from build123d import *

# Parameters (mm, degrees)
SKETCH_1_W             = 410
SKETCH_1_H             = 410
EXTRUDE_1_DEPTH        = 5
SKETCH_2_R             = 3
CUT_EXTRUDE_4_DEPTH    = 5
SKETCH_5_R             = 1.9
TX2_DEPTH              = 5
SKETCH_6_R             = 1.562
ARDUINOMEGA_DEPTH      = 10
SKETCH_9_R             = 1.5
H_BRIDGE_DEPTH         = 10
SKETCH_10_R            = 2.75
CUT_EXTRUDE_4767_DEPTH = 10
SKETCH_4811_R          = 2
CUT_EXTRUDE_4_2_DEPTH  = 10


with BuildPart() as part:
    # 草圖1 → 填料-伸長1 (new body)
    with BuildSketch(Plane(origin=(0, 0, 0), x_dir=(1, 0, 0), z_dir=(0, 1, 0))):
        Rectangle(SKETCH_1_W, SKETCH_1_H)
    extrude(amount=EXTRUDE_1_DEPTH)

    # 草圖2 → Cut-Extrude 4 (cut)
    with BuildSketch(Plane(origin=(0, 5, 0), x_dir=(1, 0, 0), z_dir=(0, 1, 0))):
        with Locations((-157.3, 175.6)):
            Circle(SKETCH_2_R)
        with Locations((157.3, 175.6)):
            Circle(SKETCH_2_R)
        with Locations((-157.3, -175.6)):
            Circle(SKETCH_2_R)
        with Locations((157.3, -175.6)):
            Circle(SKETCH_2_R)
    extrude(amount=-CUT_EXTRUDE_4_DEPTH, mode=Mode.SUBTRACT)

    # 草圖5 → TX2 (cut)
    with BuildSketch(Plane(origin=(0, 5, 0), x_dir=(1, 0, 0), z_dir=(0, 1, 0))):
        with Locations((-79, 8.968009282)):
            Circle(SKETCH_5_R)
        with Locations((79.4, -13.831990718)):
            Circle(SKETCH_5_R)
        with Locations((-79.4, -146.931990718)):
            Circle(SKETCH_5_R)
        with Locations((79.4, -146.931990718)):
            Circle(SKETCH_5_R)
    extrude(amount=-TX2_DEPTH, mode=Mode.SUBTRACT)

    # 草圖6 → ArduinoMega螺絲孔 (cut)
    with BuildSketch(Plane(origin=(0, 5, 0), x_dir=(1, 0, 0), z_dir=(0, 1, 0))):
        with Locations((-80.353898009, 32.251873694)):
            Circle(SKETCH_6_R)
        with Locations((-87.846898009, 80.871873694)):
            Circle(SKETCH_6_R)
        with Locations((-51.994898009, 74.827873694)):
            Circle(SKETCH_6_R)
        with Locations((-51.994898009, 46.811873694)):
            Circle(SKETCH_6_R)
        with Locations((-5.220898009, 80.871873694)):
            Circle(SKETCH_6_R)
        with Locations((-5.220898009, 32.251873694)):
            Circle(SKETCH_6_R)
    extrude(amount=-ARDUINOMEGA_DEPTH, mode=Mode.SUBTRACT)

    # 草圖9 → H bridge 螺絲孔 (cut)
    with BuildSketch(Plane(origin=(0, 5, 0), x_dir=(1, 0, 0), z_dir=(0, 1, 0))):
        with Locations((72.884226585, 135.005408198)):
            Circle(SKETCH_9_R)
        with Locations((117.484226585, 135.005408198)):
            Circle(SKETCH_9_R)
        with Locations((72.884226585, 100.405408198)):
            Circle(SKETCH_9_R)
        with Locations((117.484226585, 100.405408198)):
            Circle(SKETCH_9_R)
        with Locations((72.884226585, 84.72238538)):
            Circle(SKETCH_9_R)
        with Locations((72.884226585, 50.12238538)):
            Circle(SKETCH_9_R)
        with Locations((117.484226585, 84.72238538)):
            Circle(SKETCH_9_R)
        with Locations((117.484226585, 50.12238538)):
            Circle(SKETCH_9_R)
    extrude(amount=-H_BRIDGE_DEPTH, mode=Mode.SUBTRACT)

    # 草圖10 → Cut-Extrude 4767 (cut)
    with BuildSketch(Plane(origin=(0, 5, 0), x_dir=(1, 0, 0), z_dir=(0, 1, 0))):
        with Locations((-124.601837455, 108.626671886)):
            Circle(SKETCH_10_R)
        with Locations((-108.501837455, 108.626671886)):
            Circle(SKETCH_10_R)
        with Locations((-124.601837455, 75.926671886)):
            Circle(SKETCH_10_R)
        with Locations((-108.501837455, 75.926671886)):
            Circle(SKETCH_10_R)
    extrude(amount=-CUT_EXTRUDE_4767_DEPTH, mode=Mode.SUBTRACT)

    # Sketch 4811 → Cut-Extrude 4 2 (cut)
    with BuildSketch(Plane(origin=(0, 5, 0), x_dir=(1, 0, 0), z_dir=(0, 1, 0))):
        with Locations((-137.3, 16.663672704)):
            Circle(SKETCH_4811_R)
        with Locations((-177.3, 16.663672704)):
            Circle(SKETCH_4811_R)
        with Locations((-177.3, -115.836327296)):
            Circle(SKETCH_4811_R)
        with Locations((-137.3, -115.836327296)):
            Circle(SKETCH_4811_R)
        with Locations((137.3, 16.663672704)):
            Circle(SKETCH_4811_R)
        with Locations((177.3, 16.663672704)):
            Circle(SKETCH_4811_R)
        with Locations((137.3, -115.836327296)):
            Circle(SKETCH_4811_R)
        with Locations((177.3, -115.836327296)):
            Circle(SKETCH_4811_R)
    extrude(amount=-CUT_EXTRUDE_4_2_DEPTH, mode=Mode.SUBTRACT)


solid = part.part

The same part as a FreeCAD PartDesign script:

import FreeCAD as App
import Part
import Sketcher

V = App.Vector
Q = App.Units.Quantity


def add_polygon(sketch, points):
    """Adds a closed chain of lines whose ends are joined by coincident constraints."""
    first, n = sketch.GeometryCount, len(points)
    for a, b in zip(points, points[1:] + points[:1]):
        sketch.addGeometry(Part.LineSegment(App.Vector(*a, 0), App.Vector(*b, 0)), False)
    for i in range(n):
        sketch.addConstraint(Sketcher.Constraint("Coincident", first + i, 2, first + (i + 1) % n, 1))

doc = App.newDocument("Part")
params = doc.addObject("Spreadsheet::Sheet", "Params")
for row, (alias, value) in enumerate([
    ("sketch1_width", "410 mm"),
    ("pad1_length", "5 mm"),
    ("sketch2_diameter", "6 mm"),
    ("pocket1_length", "5 mm"),
    ("sketch3_diameter", "3.8 mm"),
    ("pocket2_length", "5 mm"),
    ("pocket3_length", "10 mm"),
    ("sketch5_diameter", "3 mm"),
    ("pocket4_length", "10 mm"),
    ("sketch6_diameter", "5.5 mm"),
    ("pocket5_length", "10 mm"),
    ("sketch7_diameter", "4 mm"),
    ("pocket6_length", "10 mm"),
], start=1):
    params.set(f"A{row}", alias)
    params.set(f"B{row}", "=" + value)
    params.setAlias(f"B{row}", alias)

body = doc.addObject("PartDesign::Body", "Body")

sketch1 = body.newObject("Sketcher::SketchObject", "Sketch")
sketch1.AttachmentSupport = (doc.getObject("XZ_Plane"), [""])
sketch1.MapMode = "FlatFace"
add_polygon(sketch1, [(-205, -205), (-205, 205), (205, 205), (205, -205)])
sketch1.addConstraint([
    Sketcher.Constraint("Vertical", 0),
    Sketcher.Constraint("Horizontal", 1),
    Sketcher.Constraint("Vertical", 2),
    Sketcher.Constraint("Horizontal", 3),
    Sketcher.Constraint("Symmetric", 0, 2, 2, 2, -1, 1),
    Sketcher.Constraint("Equal", 3, 0),
    Sketcher.Constraint("DistanceX", 1, 1, 1, 2, Q("410 mm")),
])
sketch1.setExpression("Constraints[10]", "Params.sketch1_width")
pad1 = body.newObject("PartDesign::Pad", "Pad")
pad1.Profile = sketch1
pad1.setExpression("Length", "Params.pad1_length")
pad1.Reversed = True

sketch2 = body.newObject("Sketcher::SketchObject", "Sketch001")
sketch2.AttachmentSupport = (doc.getObject("XZ_Plane"), [""])
sketch2.MapMode = "FlatFace"
sketch2.AttachmentOffset = App.Placement(V(0, 0, -5), App.Rotation())
sketch2.addGeometry([
    Part.Circle(V(-157.3, -175.6, 0), V(0, 0, 1), 3),
    Part.Circle(V(157.3, -175.6, 0), V(0, 0, 1), 3),
    Part.Circle(V(-157.3, 175.6, 0), V(0, 0, 1), 3),
    Part.Circle(V(157.3, 175.6, 0), V(0, 0, 1), 3),
], False)
sketch2.addConstraint([
    Sketcher.Constraint("Equal", 0, 1),
    Sketcher.Constraint("Equal", 1, 2),
    Sketcher.Constraint("Equal", 2, 3),
    Sketcher.Constraint("Symmetric", 1, 3, 2, 3, -1, 1),
    Sketcher.Constraint("Symmetric", 0, 3, 3, 3, -1, 1),
    Sketcher.Constraint("Symmetric", 0, 3, 1, 3, -2),
    Sketcher.Constraint("Diameter", 0, Q("6 mm")),
    Sketcher.Constraint("DistanceX", 0, 3, -1, 1, Q("157.3 mm")),
    Sketcher.Constraint("DistanceY", 0, 3, -1, 1, Q("175.6 mm")),
])
sketch2.setExpression("Constraints[6]", "Params.sketch2_diameter")
pocket1 = body.newObject("PartDesign::Pocket", "Pocket")
pocket1.Profile = sketch2
pocket1.setExpression("Length", "Params.pocket1_length")
pocket1.Reversed = True

sketch3 = body.newObject("Sketcher::SketchObject", "Sketch002")
sketch3.AttachmentSupport = (doc.getObject("XZ_Plane"), [""])
sketch3.MapMode = "FlatFace"
sketch3.AttachmentOffset = App.Placement(V(0, 0, -5), App.Rotation())
sketch3.addGeometry([
    Part.Circle(V(-79, -9, 0), V(0, 0, 1), 1.9),
    Part.Circle(V(79.4, 13.8, 0), V(0, 0, 1), 1.9),
    Part.Circle(V(-79.4, 146.9, 0), V(0, 0, 1), 1.9),
    Part.Circle(V(79.4, 146.9, 0), V(0, 0, 1), 1.9),
], False)
sketch3.addConstraint([
    Sketcher.Constraint("Equal", 0, 1),
    Sketcher.Constraint("Equal", 1, 2),
    Sketcher.Constraint("Equal", 2, 3),
    Sketcher.Constraint("Symmetric", 2, 3, 3, 3, -2),
    Sketcher.Constraint("Vertical", 1, 3, 3, 3),
    Sketcher.Constraint("Diameter", 0, Q("3.8 mm")),
    Sketcher.Constraint("DistanceX", 0, 3, -1, 1, Q("79 mm")),
    Sketcher.Constraint("DistanceX", -1, 1, 1, 3, Q("79.4 mm")),
    Sketcher.Constraint("DistanceY", 0, 3, 1, 3, Q("22.8 mm")),
    Sketcher.Constraint("DistanceY", 0, 3, 2, 3, Q("155.9 mm")),
    Sketcher.Constraint("DistanceY", 0, 3, -1, 1, Q("8.968009 mm")),
])
sketch3.setExpression("Constraints[5]", "Params.sketch3_diameter")
pocket2 = body.newObject("PartDesign::Pocket", "Pocket001")
pocket2.Profile = sketch3
pocket2.setExpression("Length", "Params.pocket2_length")
pocket2.Reversed = True

sketch4 = body.newObject("Sketcher::SketchObject", "Sketch003")
sketch4.AttachmentSupport = (doc.getObject("XZ_Plane"), [""])
sketch4.MapMode = "FlatFace"
sketch4.AttachmentOffset = App.Placement(V(0, 0, -5), App.Rotation())
sketch4.addGeometry([
    Part.Circle(V(-80.4, -32.3, 0), V(0, 0, 1), 1.6),
    Part.Circle(V(-87.8, -80.9, 0), V(0, 0, 1), 1.6),
    Part.Circle(V(-52, -74.8, 0), V(0, 0, 1), 1.6),
    Part.Circle(V(-52, -46.8, 0), V(0, 0, 1), 1.6),
    Part.Circle(V(-5.2, -80.9, 0), V(0, 0, 1), 1.6),
    Part.Circle(V(-5.2, -32.3, 0), V(0, 0, 1), 1.6),
], False)
sketch4.addConstraint([
    Sketcher.Constraint("Equal", 0, 1),
    Sketcher.Constraint("Equal", 1, 2),
    Sketcher.Constraint("Equal", 2, 3),
    Sketcher.Constraint("Equal", 3, 4),
    Sketcher.Constraint("Equal", 4, 5),
    Sketcher.Constraint("Horizontal", 1, 3, 4, 3),
    Sketcher.Constraint("Horizontal", 0, 3, 5, 3),
    Sketcher.Constraint("Vertical", 2, 3, 3, 3),
    Sketcher.Constraint("Vertical", 4, 3, 5, 3),
    Sketcher.Constraint("Diameter", 0, Q("3.124 mm")),
    Sketcher.Constraint("DistanceY", 1, 3, 0, 3, Q("48.62 mm")),
    Sketcher.Constraint("DistanceY", 3, 3, 0, 3, Q("14.56 mm")),
    Sketcher.Constraint("DistanceX", 1, 3, 0, 3, Q("7.493 mm")),
    Sketcher.Constraint("DistanceX", 1, 3, 2, 3, Q("35.852 mm")),
    Sketcher.Constraint("DistanceY", 1, 3, 2, 3, Q("6.044 mm")),
    Sketcher.Constraint("DistanceX", 2, 3, 4, 3, Q("46.774 mm")),
    Sketcher.Constraint("DistanceX", 0, 3, -1, 1, Q("80.353898 mm")),
    Sketcher.Constraint("DistanceY", 0, 3, -1, 1, Q("32.251874 mm")),
])
pocket3 = body.newObject("PartDesign::Pocket", "Pocket002")
pocket3.Profile = sketch4
pocket3.setExpression("Length", "Params.pocket3_length")
pocket3.Reversed = True

sketch5 = body.newObject("Sketcher::SketchObject", "Sketch004")
sketch5.AttachmentSupport = (doc.getObject("XZ_Plane"), [""])
sketch5.MapMode = "FlatFace"
sketch5.AttachmentOffset = App.Placement(V(0, 0, -5), App.Rotation())
sketch5.addGeometry([
    Part.Circle(V(72.9, -135, 0), V(0, 0, 1), 1.5),
    Part.Circle(V(117.5, -135, 0), V(0, 0, 1), 1.5),
    Part.Circle(V(72.9, -100.4, 0), V(0, 0, 1), 1.5),
    Part.Circle(V(117.5, -100.4, 0), V(0, 0, 1), 1.5),
    Part.Circle(V(72.9, -84.7, 0), V(0, 0, 1), 1.5),
    Part.Circle(V(72.9, -50.1, 0), V(0, 0, 1), 1.5),
    Part.Circle(V(117.5, -84.7, 0), V(0, 0, 1), 1.5),
    Part.Circle(V(117.5, -50.1, 0), V(0, 0, 1), 1.5),
], False)
sketch5.addConstraint([
    Sketcher.Constraint("Equal", 0, 1),
    Sketcher.Constraint("Equal", 1, 2),
    Sketcher.Constraint("Equal", 2, 3),
    Sketcher.Constraint("Equal", 3, 4),
    Sketcher.Constraint("Equal", 4, 5),
    Sketcher.Constraint("Equal", 5, 6),
    Sketcher.Constraint("Equal", 6, 7),
    Sketcher.Constraint("Horizontal", 0, 3, 1, 3),
    Sketcher.Constraint("Horizontal", 2, 3, 3, 3),
    Sketcher.Constraint("Horizontal", 4, 3, 6, 3),
    Sketcher.Constraint("Horizontal", 5, 3, 7, 3),
    Sketcher.Constraint("Vertical", 0, 3, 2, 3),
    Sketcher.Constraint("Vertical", 1, 3, 3, 3),
    Sketcher.Constraint("Vertical", 2, 3, 4, 3),
    Sketcher.Constraint("Vertical", 4, 3, 5, 3),
    Sketcher.Constraint("Vertical", 3, 3, 6, 3),
    Sketcher.Constraint("Vertical", 6, 3, 7, 3),
    Sketcher.Constraint("Diameter", 0, Q("3 mm")),
    Sketcher.Constraint("DistanceX", 0, 3, 1, 3, Q("44.6 mm")),
    Sketcher.Constraint("DistanceY", 0, 3, 2, 3, Q("34.6 mm")),
    Sketcher.Constraint("DistanceY", 4, 3, 5, 3, Q("34.6 mm")),
    Sketcher.Constraint("DistanceY", 0, 3, -1, 1, Q("135.005408 mm")),
    Sketcher.Constraint("DistanceX", -1, 1, 0, 3, Q("72.884227 mm")),
    Sketcher.Constraint("DistanceY", 4, 3, -1, 1, Q("84.722385 mm")),
])
sketch5.setExpression("Constraints[17]", "Params.sketch5_diameter")
pocket4 = body.newObject("PartDesign::Pocket", "Pocket003")
pocket4.Profile = sketch5
pocket4.setExpression("Length", "Params.pocket4_length")
pocket4.Reversed = True

sketch6 = body.newObject("Sketcher::SketchObject", "Sketch005")
sketch6.AttachmentSupport = (doc.getObject("XZ_Plane"), [""])
sketch6.MapMode = "FlatFace"
sketch6.AttachmentOffset = App.Placement(V(0, 0, -5), App.Rotation())
sketch6.addGeometry([
    Part.Circle(V(-124.6, -108.6, 0), V(0, 0, 1), 2.8),
    Part.Circle(V(-108.5, -108.6, 0), V(0, 0, 1), 2.8),
    Part.Circle(V(-124.6, -75.9, 0), V(0, 0, 1), 2.8),
    Part.Circle(V(-108.5, -75.9, 0), V(0, 0, 1), 2.8),
], False)
sketch6.addConstraint([
    Sketcher.Constraint("Equal", 0, 1),
    Sketcher.Constraint("Equal", 1, 2),
    Sketcher.Constraint("Equal", 2, 3),
    Sketcher.Constraint("Horizontal", 0, 3, 1, 3),
    Sketcher.Constraint("Horizontal", 2, 3, 3, 3),
    Sketcher.Constraint("Vertical", 0, 3, 2, 3),
    Sketcher.Constraint("Vertical", 1, 3, 3, 3),
    Sketcher.Constraint("Diameter", 0, Q("5.5 mm")),
    Sketcher.Constraint("DistanceX", 0, 3, 1, 3, Q("16.1 mm")),
    Sketcher.Constraint("DistanceY", 0, 3, 2, 3, Q("32.7 mm")),
    Sketcher.Constraint("DistanceY", 0, 3, -1, 1, Q("108.626672 mm")),
    Sketcher.Constraint("DistanceX", 0, 3, -1, 1, Q("124.601837 mm")),
])
sketch6.setExpression("Constraints[7]", "Params.sketch6_diameter")
pocket5 = body.newObject("PartDesign::Pocket", "Pocket004")
pocket5.Profile = sketch6
pocket5.setExpression("Length", "Params.pocket5_length")
pocket5.Reversed = True

sketch7 = body.newObject("Sketcher::SketchObject", "Sketch006")
sketch7.AttachmentSupport = (doc.getObject("XZ_Plane"), [""])
sketch7.MapMode = "FlatFace"
sketch7.AttachmentOffset = App.Placement(V(0, 0, -5), App.Rotation())
sketch7.addGeometry([
    Part.Circle(V(-137.3, -16.7, 0), V(0, 0, 1), 2),
    Part.Circle(V(-177.3, -16.7, 0), V(0, 0, 1), 2),
    Part.Circle(V(-177.3, 115.8, 0), V(0, 0, 1), 2),
    Part.Circle(V(-137.3, 115.8, 0), V(0, 0, 1), 2),
    Part.Circle(V(137.3, -16.7, 0), V(0, 0, 1), 2),
    Part.Circle(V(177.3, -16.7, 0), V(0, 0, 1), 2),
    Part.Circle(V(137.3, 115.8, 0), V(0, 0, 1), 2),
    Part.Circle(V(177.3, 115.8, 0), V(0, 0, 1), 2),
], False)
sketch7.addConstraint([
    Sketcher.Constraint("Equal", 0, 1),
    Sketcher.Constraint("Equal", 1, 2),
    Sketcher.Constraint("Equal", 2, 3),
    Sketcher.Constraint("Equal", 3, 4),
    Sketcher.Constraint("Equal", 4, 5),
    Sketcher.Constraint("Equal", 5, 6),
    Sketcher.Constraint("Equal", 6, 7),
    Sketcher.Constraint("Symmetric", 0, 3, 4, 3, -2),
    Sketcher.Constraint("Symmetric", 1, 3, 5, 3, -2),
    Sketcher.Constraint("Symmetric", 3, 3, 6, 3, -2),
    Sketcher.Constraint("Symmetric", 2, 3, 7, 3, -2),
    Sketcher.Constraint("Horizontal", 0, 3, 1, 3),
    Sketcher.Constraint("Horizontal", 2, 3, 3, 3),
    Sketcher.Constraint("Vertical", 1, 3, 2, 3),
    Sketcher.Constraint("Vertical", 0, 3, 3, 3),
    Sketcher.Constraint("Diameter", 0, Q("4 mm")),
    Sketcher.Constraint("DistanceX", 1, 3, 0, 3, Q("40 mm")),
    Sketcher.Constraint("DistanceX", 0, 3, -1, 1, Q("137.3 mm")),
    Sketcher.Constraint("DistanceY", 1, 3, 2, 3, Q("132.5 mm")),
    Sketcher.Constraint("DistanceY", 0, 3, -1, 1, Q("16.663673 mm")),
])
sketch7.setExpression("Constraints[15]", "Params.sketch7_diameter")
pocket6 = body.newObject("PartDesign::Pocket", "Pocket005")
pocket6.Profile = sketch7
pocket6.setExpression("Length", "Params.pocket6_length")
pocket6.Reversed = True

doc.recompute()
